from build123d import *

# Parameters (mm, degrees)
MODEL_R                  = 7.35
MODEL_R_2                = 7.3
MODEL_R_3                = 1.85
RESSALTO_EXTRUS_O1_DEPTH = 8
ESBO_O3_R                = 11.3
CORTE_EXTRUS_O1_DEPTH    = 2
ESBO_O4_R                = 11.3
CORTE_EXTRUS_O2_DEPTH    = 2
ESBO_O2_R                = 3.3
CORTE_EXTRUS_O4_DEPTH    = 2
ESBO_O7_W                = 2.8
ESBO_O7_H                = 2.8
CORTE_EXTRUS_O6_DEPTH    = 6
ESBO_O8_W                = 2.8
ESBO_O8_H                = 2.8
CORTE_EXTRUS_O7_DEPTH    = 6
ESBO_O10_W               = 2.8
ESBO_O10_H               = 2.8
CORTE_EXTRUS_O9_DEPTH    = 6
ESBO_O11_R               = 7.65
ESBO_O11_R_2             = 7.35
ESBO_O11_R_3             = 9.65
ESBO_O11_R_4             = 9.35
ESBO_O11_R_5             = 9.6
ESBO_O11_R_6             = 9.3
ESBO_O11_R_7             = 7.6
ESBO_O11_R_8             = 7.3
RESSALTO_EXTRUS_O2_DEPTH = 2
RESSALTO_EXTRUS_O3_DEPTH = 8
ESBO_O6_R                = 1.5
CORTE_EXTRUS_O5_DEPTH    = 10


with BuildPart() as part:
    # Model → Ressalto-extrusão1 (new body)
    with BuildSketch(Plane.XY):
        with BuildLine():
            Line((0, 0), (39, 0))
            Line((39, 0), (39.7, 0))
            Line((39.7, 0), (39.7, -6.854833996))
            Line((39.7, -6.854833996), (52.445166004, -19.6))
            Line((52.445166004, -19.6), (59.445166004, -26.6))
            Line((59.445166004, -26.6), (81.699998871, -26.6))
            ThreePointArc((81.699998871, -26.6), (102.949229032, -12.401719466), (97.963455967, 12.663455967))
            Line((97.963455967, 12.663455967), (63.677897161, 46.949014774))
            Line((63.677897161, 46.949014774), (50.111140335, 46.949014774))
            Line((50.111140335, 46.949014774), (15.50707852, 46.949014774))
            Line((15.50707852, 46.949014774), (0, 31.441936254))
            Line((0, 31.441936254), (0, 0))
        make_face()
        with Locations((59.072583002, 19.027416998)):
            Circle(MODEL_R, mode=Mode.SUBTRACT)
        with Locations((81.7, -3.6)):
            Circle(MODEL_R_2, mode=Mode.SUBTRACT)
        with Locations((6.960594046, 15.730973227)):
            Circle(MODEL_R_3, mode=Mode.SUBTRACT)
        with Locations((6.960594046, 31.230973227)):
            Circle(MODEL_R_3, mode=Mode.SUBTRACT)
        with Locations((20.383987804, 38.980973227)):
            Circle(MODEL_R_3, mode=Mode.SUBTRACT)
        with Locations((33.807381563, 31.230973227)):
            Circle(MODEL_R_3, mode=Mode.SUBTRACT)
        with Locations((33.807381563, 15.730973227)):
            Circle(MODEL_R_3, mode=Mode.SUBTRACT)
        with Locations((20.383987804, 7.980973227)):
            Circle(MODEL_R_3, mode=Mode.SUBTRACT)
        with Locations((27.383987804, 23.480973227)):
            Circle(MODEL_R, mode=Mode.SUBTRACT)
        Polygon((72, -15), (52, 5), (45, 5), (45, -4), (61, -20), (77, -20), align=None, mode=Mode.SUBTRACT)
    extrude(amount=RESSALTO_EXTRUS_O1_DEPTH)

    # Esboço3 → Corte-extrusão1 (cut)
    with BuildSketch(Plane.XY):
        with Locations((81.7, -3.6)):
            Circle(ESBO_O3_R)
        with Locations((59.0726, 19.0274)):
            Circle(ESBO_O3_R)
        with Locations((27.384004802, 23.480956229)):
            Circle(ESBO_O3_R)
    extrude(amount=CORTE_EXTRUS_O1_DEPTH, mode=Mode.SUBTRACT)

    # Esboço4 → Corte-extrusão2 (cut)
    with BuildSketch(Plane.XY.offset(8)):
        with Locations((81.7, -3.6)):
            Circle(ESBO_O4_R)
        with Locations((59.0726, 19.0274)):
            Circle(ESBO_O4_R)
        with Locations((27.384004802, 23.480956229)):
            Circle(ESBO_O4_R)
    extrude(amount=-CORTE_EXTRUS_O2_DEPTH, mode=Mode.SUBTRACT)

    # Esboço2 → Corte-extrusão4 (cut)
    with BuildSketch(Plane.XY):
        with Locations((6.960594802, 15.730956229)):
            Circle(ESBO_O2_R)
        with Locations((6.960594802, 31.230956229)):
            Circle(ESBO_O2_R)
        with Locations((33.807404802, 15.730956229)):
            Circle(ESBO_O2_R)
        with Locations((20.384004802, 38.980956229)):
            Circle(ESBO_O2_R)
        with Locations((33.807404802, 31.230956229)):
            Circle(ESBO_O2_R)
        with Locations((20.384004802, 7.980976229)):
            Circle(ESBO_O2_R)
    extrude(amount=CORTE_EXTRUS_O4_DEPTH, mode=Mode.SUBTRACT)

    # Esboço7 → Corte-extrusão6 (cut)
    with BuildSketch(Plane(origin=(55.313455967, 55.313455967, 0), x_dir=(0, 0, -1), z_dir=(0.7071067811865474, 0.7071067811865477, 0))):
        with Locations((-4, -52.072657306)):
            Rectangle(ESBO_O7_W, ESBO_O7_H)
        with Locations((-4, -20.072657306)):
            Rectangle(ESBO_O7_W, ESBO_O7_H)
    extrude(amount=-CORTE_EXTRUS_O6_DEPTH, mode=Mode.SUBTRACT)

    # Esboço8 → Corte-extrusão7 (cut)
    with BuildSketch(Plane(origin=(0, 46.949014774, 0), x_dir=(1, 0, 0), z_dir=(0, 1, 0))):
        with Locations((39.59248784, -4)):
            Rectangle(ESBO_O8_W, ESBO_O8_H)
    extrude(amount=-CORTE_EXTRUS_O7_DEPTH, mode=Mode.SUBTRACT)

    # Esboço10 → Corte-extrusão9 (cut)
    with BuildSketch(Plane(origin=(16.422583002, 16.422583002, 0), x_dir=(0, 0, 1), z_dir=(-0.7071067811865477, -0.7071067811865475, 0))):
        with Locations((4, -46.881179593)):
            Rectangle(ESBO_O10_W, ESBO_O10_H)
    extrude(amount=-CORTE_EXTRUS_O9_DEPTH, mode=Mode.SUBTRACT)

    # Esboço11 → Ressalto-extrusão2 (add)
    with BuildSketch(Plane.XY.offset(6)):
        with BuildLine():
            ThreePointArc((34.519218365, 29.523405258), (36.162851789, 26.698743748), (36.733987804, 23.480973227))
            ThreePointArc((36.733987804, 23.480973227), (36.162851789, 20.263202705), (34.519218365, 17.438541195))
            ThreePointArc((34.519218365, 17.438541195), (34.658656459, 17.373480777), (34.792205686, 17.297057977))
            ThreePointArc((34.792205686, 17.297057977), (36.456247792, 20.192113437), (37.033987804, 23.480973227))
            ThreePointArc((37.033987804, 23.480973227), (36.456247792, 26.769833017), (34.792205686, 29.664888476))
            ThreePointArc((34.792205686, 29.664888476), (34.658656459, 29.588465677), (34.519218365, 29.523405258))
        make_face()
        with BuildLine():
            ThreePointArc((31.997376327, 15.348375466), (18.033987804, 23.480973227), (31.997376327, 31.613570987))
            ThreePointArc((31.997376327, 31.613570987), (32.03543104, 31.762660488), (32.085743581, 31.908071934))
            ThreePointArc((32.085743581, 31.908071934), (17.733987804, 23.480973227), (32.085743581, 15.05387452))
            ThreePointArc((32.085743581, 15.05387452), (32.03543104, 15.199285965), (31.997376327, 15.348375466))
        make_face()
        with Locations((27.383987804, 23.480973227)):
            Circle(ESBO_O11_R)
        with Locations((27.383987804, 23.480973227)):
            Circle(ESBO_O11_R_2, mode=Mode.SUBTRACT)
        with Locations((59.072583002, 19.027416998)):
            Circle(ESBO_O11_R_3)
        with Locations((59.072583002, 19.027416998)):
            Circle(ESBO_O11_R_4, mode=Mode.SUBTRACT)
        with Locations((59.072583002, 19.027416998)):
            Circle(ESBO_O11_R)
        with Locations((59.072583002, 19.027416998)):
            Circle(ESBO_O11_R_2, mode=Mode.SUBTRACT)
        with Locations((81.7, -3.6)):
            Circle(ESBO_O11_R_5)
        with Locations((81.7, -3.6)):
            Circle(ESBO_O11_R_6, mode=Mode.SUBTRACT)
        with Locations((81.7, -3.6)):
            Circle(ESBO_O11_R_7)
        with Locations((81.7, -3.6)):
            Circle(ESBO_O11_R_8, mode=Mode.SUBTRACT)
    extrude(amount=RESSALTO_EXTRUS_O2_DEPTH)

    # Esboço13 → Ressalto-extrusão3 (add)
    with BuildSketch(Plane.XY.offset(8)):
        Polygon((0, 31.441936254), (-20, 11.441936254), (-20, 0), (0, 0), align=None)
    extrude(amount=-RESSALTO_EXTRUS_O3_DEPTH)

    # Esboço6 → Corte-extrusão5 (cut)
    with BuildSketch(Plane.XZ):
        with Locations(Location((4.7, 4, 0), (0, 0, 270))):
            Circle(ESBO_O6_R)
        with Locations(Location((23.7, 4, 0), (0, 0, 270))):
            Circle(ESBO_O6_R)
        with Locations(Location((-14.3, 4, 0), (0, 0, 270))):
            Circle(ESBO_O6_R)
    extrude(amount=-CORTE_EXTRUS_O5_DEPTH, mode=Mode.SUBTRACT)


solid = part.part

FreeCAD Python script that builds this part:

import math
import FreeCAD as App
import Part
import Sketcher
Q = App.Units.Quantity

doc = App.newDocument("Part")
params = doc.addObject("Spreadsheet::Sheet", "Params")
for row, (alias, value) in enumerate([
    ("sketch1_radius", "23 mm"),
    ("sketch1_diameter", "3.7 mm"),
    ("sketch1_diameter2", "14.6 mm"),
    ("sketch1_diameter3", "14.7 mm"),
    ("sketch1_width", "16 mm"),
    ("pad1_length", "8 mm"),
    ("sketch2_diameter", "22.6 mm"),
    ("pocket1_length", "2 mm"),
    ("sketch3_diameter", "22.6 mm"),
    ("pocket2_length", "2 mm"),
    ("sketch4_diameter", "6.6 mm"),
    ("pocket3_length", "2 mm"),
    ("sketch5_width", "2.8 mm"),
    ("pocket4_length", "6 mm"),
    ("sketch6_width", "2.8 mm"),
    ("pocket5_length", "6 mm"),
    ("sketch7_width", "2.8 mm"),
    ("pocket6_length", "6 mm"),
    ("sketch8_diameter", "15.3 mm"),
    ("sketch8_diameter2", "14.7 mm"),
    ("sketch8_diameter3", "19.3 mm"),
    ("sketch8_diameter4", "18.7 mm"),
    ("sketch8_diameter5", "19.2 mm"),
    ("pad2_length", "2 mm"),
    ("sketch9_width", "20 mm"),
    ("pad3_length", "8 mm"),
    ("sketch10_diameter", "3 mm"),
    ("pocket7_length", "10 mm"),
], start=1):
    params.set(f"A{row}", alias)
    params.set(f"B{row}", "=" + value)
    params.setAlias(f"B{row}", alias)

body = doc.addObject("PartDesign::Body", "Body")

# Sketch on XY plane
sketch1 = body.newObject("Sketcher::SketchObject", "Sketch")
sketch1.AttachmentSupport = (doc.getObject("XY_Plane"), [""])
sketch1.MapMode = "FlatFace"
sketch1.addGeometry([
    Part.LineSegment(App.Vector(0, 0, 0), App.Vector(39.7, 0, 0)),  # 0
    Part.LineSegment(App.Vector(39.7, 0, 0), App.Vector(39.7, -6.9, 0)),  # 1
    Part.LineSegment(App.Vector(39.7, -6.9, 0), App.Vector(59.4, -26.6, 0)),  # 2
    Part.LineSegment(App.Vector(59.4, -26.6, 0), App.Vector(81.7, -26.6, 0)),  # 3
    Part.ArcOfCircle(Part.Circle(App.Vector(81.7, -3.6, 0), App.Vector(0, 0, 1), 23), math.radians(-90), math.radians(45)),  # 4
    Part.LineSegment(App.Vector(98, 12.7, 0), App.Vector(63.7, 46.9, 0)),  # 5
    Part.LineSegment(App.Vector(63.7, 46.9, 0), App.Vector(15.5, 46.9, 0)),  # 6
    Part.LineSegment(App.Vector(15.5, 46.9, 0), App.Vector(0, 31.4, 0)),  # 7
    Part.LineSegment(App.Vector(0, 31.4, 0), App.Vector(0, 0, 0)),  # 8
    Part.Circle(App.Vector(20.4, 8, 0), App.Vector(0, 0, 1), 1.9),  # 9
    Part.LineSegment(App.Vector(52, 5, 0), App.Vector(77, -20, 0)),  # 10
    Part.LineSegment(App.Vector(77, -20, 0), App.Vector(61, -20, 0)),  # 11
    Part.LineSegment(App.Vector(61, -20, 0), App.Vector(45, -4, 0)),  # 12
    Part.LineSegment(App.Vector(45, -4, 0), App.Vector(45, 5, 0)),  # 13
    Part.LineSegment(App.Vector(45, 5, 0), App.Vector(52, 5, 0)),  # 14
    Part.Circle(App.Vector(81.7, -3.6, 0), App.Vector(0, 0, 1), 7.3),  # 15
    Part.Circle(App.Vector(7, 15.7, 0), App.Vector(0, 0, 1), 1.9),  # 16
    Part.Circle(App.Vector(33.8, 15.7, 0), App.Vector(0, 0, 1), 1.9),  # 17
    Part.Circle(App.Vector(27.4, 23.5, 0), App.Vector(0, 0, 1), 7.3),  # 18
    Part.Circle(App.Vector(7, 31.2, 0), App.Vector(0, 0, 1), 1.9),  # 19
    Part.Circle(App.Vector(20.4, 39, 0), App.Vector(0, 0, 1), 1.9),  # 20
    Part.Circle(App.Vector(33.8, 31.2, 0), App.Vector(0, 0, 1), 1.9),  # 21
    Part.Circle(App.Vector(59.1, 19, 0), App.Vector(0, 0, 1), 7.3),  # 22
], False)
sketch1.addConstraint([
    Sketcher.Constraint("Coincident", 0, 2, 1, 1),
    Sketcher.Constraint("Coincident", 1, 2, 2, 1),
    Sketcher.Constraint("Coincident", 2, 2, 3, 1),
    Sketcher.Constraint("Tangent", 3, 2, 4, 1),
    Sketcher.Constraint("Tangent", 4, 2, 5, 1),
    Sketcher.Constraint("Coincident", 5, 2, 6, 1),
    Sketcher.Constraint("Coincident", 6, 2, 7, 1),
    Sketcher.Constraint("Coincident", 7, 2, 8, 1),
    Sketcher.Constraint("Coincident", 8, 2, 0, 1),
    Sketcher.Constraint("Coincident", 10, 2, 11, 1),
    Sketcher.Constraint("Coincident", 11, 2, 12, 1),
    Sketcher.Constraint("Coincident", 12, 2, 13, 1),
    Sketcher.Constraint("Coincident", 13, 2, 14, 1),
    Sketcher.Constraint("Coincident", 14, 2, 10, 1),
    Sketcher.Constraint("Horizontal", 0),
    Sketcher.Constraint("Vertical", 1),
    Sketcher.Constraint("Horizontal", 3),
    Sketcher.Constraint("Horizontal", 6),
    Sketcher.Constraint("Vertical", 8),
    Sketcher.Constraint("Horizontal", 11),
    Sketcher.Constraint("Vertical", 13),
    Sketcher.Constraint("Horizontal", 14),
    Sketcher.Constraint("Coincident", 8, 2, -1, 1),
    Sketcher.Constraint("Coincident", 15, 3, 4, 3),
    Sketcher.Constraint("Equal", 9, 16),
    Sketcher.Constraint("Equal", 16, 17),
    Sketcher.Constraint("Equal", 17, 19),
    Sketcher.Constraint("Equal", 19, 20),
    Sketcher.Constraint("Equal", 20, 21),
    Sketcher.Constraint("Equal", 18, 22),
    Sketcher.Constraint("Parallel", 2, 5),
    Sketcher.Constraint("Perpendicular", 5, 7),
    Sketcher.Constraint("Perpendicular", 7, 10),
    Sketcher.Constraint("Parallel", 10, 12),
    Sketcher.Constraint("Horizontal", 16, 3, 17, 3),
    Sketcher.Constraint("Horizontal", 19, 3, 21, 3),
    Sketcher.Constraint("Vertical", 16, 3, 19, 3),
    Sketcher.Constraint("Vertical", 9, 3, 20, 3),
    Sketcher.Constraint("Vertical", 17, 3, 21, 3),
    Sketcher.Constraint("Radius", 4, Q("23 mm")),
    Sketcher.Constraint("Diameter", 9, Q("3.7 mm")),
    Sketcher.Constraint("Diameter", 15, Q("14.6 mm")),
    Sketcher.Constraint("Diameter", 18, Q("14.7 mm")),
    Sketcher.Constraint("DistanceX", 11, 2, 11, 1, Q("16 mm")),
    Sketcher.Constraint("DistanceX", 14, 1, 14, 2, Q("7 mm")),
    Sketcher.Constraint("DistanceY", 13, 1, 13, 2, Q("9 mm")),
    Sketcher.Constraint("DistanceX", 0, 1, 0, 2, Q("39.7 mm")),
    Sketcher.Constraint("DistanceX", -1, 1, 10, 2, Q("77 mm")),
    Sketcher.Constraint("DistanceY", 10, 2, -1, 1, Q("20 mm")),
    Sketcher.Constraint("DistanceX", -1, 1, 12, 2, Q("45 mm")),
    Sketcher.Constraint("DistanceX", 9, 3, 18, 3, Q("7 mm")),
    Sketcher.Constraint("DistanceY", 9, 3, 20, 3, Q("31 mm")),
    Sketcher.Constraint("DistanceX", 1, 2, 3, 2, Q("41.999999 mm")),
    Sketcher.Constraint("DistanceY", 4, 3, -1, 1, Q("3.6 mm")),
    Sketcher.Constraint("DistanceY", 9, 3, 18, 3, Q("15.5 mm")),
    Sketcher.Constraint("DistanceY", 16, 3, 19, 3, Q("15.5 mm")),
    Sketcher.Constraint("DistanceY", 9, 3, 16, 3, Q("7.75 mm")),
    Sketcher.Constraint("DistanceX", 6, 2, 6, 1, Q("48.170819 mm")),
    Sketcher.Constraint("DistanceX", 17, 3, 22, 3, Q("25.265201 mm")),
    Sketcher.Constraint("Distance", 2, Q("27.923882 mm")),
    Sketcher.Constraint("Distance", 7, Q("21.930321 mm")),
    Sketcher.Constraint("DistanceX", -1, 1, 17, 3, Q("33.807382 mm")),
    Sketcher.Constraint("DistanceY", 1, 2, 22, 3, Q("25.882251 mm")),
    Sketcher.Constraint("DistanceY", 21, 3, 5, 2, Q("15.718042 mm")),
    Sketcher.Constraint("DistanceX", 18, 3, 5, 2, Q("36.293909 mm")),
    Sketcher.Constraint("DistanceX", -1, 1, 16, 3, Q("6.960594 mm")),
])
sketch1.setExpression("Constraints[39]", "Params.sketch1_radius")
sketch1.setExpression("Constraints[40]", "Params.sketch1_diameter")
sketch1.setExpression("Constraints[41]", "Params.sketch1_diameter2")
sketch1.setExpression("Constraints[42]", "Params.sketch1_diameter3")
sketch1.setExpression("Constraints[43]", "Params.sketch1_width")
pad1 = body.newObject("PartDesign::Pad", "Pad")
pad1.Profile = sketch1
pad1.setExpression("Length", "Params.pad1_length")

# Sketch on XY plane
sketch2 = body.newObject("Sketcher::SketchObject", "Sketch001")
sketch2.AttachmentSupport = (doc.getObject("XY_Plane"), [""])
sketch2.MapMode = "FlatFace"
sketch2.addGeometry([
    Part.Circle(App.Vector(82, -4, 0), App.Vector(0, 0, 1), 11),
    Part.Circle(App.Vector(59, 19, 0), App.Vector(0, 0, 1), 11),
    Part.Circle(App.Vector(27, 23, 0), App.Vector(0, 0, 1), 11),
], False)
sketch2.addConstraint([
    Sketcher.Constraint("Equal", 0, 1),
    Sketcher.Constraint("Equal", 1, 2),
    Sketcher.Constraint("Diameter", 0, Q("22.6 mm")),
    Sketcher.Constraint("DistanceX", -1, 1, 0, 3, Q("81.7 mm")),
    Sketcher.Constraint("DistanceY", 0, 3, -1, 1, Q("3.6 mm")),
    Sketcher.Constraint("DistanceX", -1, 1, 1, 3, Q("59.0726 mm")),
    Sketcher.Constraint("DistanceY", -1, 1, 1, 3, Q("19.0274 mm")),
    Sketcher.Constraint("DistanceX", -1, 1, 2, 3, Q("27.384005 mm")),
    Sketcher.Constraint("DistanceY", -1, 1, 2, 3, Q("23.480956 mm")),
])
sketch2.setExpression("Constraints[2]", "Params.sketch2_diameter")
pocket1 = body.newObject("PartDesign::Pocket", "Pocket")
pocket1.Profile = sketch2
pocket1.setExpression("Length", "Params.pocket1_length")
pocket1.Reversed = True

# Sketch on XY plane
sketch3 = body.newObject("Sketcher::SketchObject", "Sketch002")
sketch3.AttachmentSupport = (doc.getObject("XY_Plane"), [""])
sketch3.MapMode = "FlatFace"
sketch3.AttachmentOffset = App.Placement(App.Vector(0, 0, 8), App.Rotation())
sketch3.addGeometry([
    Part.Circle(App.Vector(82, -4, 0), App.Vector(0, 0, 1), 11),
    Part.Circle(App.Vector(59, 19, 0), App.Vector(0, 0, 1), 11),
    Part.Circle(App.Vector(27, 23, 0), App.Vector(0, 0, 1), 11),
], False)
sketch3.addConstraint([
    Sketcher.Constraint("Equal", 0, 1),
    Sketcher.Constraint("Equal", 1, 2),
    Sketcher.Constraint("Diameter", 0, Q("22.6 mm")),
    Sketcher.Constraint("DistanceX", -1, 1, 0, 3, Q("81.7 mm")),
    Sketcher.Constraint("DistanceY", 0, 3, -1, 1, Q("3.6 mm")),
    Sketcher.Constraint("DistanceX", -1, 1, 1, 3, Q("59.0726 mm")),
    Sketcher.Constraint("DistanceY", -1, 1, 1, 3, Q("19.0274 mm")),
    Sketcher.Constraint("DistanceX", -1, 1, 2, 3, Q("27.384005 mm")),
    Sketcher.Constraint("DistanceY", -1, 1, 2, 3, Q("23.480956 mm")),
])
sketch3.setExpression("Constraints[2]", "Params.sketch3_diameter")
pocket2 = body.newObject("PartDesign::Pocket", "Pocket001")
pocket2.Profile = sketch3
pocket2.setExpression("Length", "Params.pocket2_length")

# Sketch on XY plane
sketch4 = body.newObject("Sketcher::SketchObject", "Sketch003")
sketch4.AttachmentSupport = (doc.getObject("XY_Plane"), [""])
sketch4.MapMode = "FlatFace"
sketch4.addGeometry([
    Part.Circle(App.Vector(7, 15.7, 0), App.Vector(0, 0, 1), 3.3),  # 0
    Part.Circle(App.Vector(7, 31.2, 0), App.Vector(0, 0, 1), 3.3),  # 1
    Part.Circle(App.Vector(33.8, 15.7, 0), App.Vector(0, 0, 1), 3.3),  # 2
    Part.Circle(App.Vector(20.4, 39, 0), App.Vector(0, 0, 1), 3.3),  # 3
    Part.Circle(App.Vector(33.8, 31.2, 0), App.Vector(0, 0, 1), 3.3),  # 4
    Part.Circle(App.Vector(20.4, 8, 0), App.Vector(0, 0, 1), 3.3),  # 5
], False)
sketch4.addConstraint([
    Sketcher.Constraint("Equal", 0, 1),
    Sketcher.Constraint("Equal", 1, 2),
    Sketcher.Constraint("Equal", 2, 3),
    Sketcher.Constraint("Equal", 3, 4),
    Sketcher.Constraint("Equal", 4, 5),
    Sketcher.Constraint("Horizontal", 0, 3, 2, 3),
    Sketcher.Constraint("Horizontal", 1, 3, 4, 3),
    Sketcher.Constraint("Vertical", 0, 3, 1, 3),
    Sketcher.Constraint("Vertical", 2, 3, 4, 3),
    Sketcher.Constraint("Vertical", 3, 3, 5, 3),
    Sketcher.Constraint("Diameter", 0, Q("6.6 mm")),
    Sketcher.Constraint("DistanceY", 0, 3, 1, 3, Q("15.5 mm")),
    Sketcher.Constraint("DistanceY", 1, 3, 3, 3, Q("7.75 mm")),
    Sketcher.Constraint("DistanceX", 3, 3, 2, 3, Q("13.4234 mm")),
    Sketcher.Constraint("DistanceX", 0, 3, 2, 3, Q("26.84681 mm")),
    Sketcher.Constraint("DistanceY", 5, 3, 2, 3, Q("7.74998 mm")),
    Sketcher.Constraint("DistanceX", -1, 1, 0, 3, Q("6.960595 mm")),
    Sketcher.Constraint("DistanceY", -1, 1, 0, 3, Q("15.730956 mm")),
])
sketch4.setExpression("Constraints[10]", "Params.sketch4_diameter")
pocket3 = body.newObject("PartDesign::Pocket", "Pocket002")
pocket3.Profile = sketch4
pocket3.setExpression("Length", "Params.pocket3_length")
pocket3.Reversed = True

# Sketch on an angled plane
sketch5 = body.newObject("Sketcher::SketchObject", "Sketch004")
sketch5.Placement = App.Placement(App.Vector(55.313456, 55.313456, 0), App.Rotation(App.Vector(0, 0, -1), App.Vector(-0.707106781, 0.707106781, 0), App.Vector(0.707106781, 0.707106781, 0), "ZXY"))
sketch5.addGeometry([
    Part.LineSegment(App.Vector(-5.4, -50.7, 0), App.Vector(-5.4, -53.5, 0)),  # 0
    Part.LineSegment(App.Vector(-5.4, -53.5, 0), App.Vector(-2.6, -53.5, 0)),  # 1
    Part.LineSegment(App.Vector(-2.6, -53.5, 0), App.Vector(-2.6, -50.7, 0)),  # 2
    Part.LineSegment(App.Vector(-2.6, -50.7, 0), App.Vector(-5.4, -50.7, 0)),  # 3
    Part.LineSegment(App.Vector(-5.4, -18.7, 0), App.Vector(-5.4, -21.5, 0)),  # 4
    Part.LineSegment(App.Vector(-5.4, -21.5, 0), App.Vector(-2.6, -21.5, 0)),  # 5
    Part.LineSegment(App.Vector(-2.6, -21.5, 0), App.Vector(-2.6, -18.7, 0)),  # 6
    Part.LineSegment(App.Vector(-2.6, -18.7, 0), App.Vector(-5.4, -18.7, 0)),  # 7
], False)
sketch5.addConstraint([
    Sketcher.Constraint("Coincident", 0, 2, 1, 1),
    Sketcher.Constraint("Coincident", 1, 2, 2, 1),
    Sketcher.Constraint("Coincident", 2, 2, 3, 1),
    Sketcher.Constraint("Coincident", 3, 2, 0, 1),
    Sketcher.Constraint("Coincident", 4, 2, 5, 1),
    Sketcher.Constraint("Coincident", 5, 2, 6, 1),
    Sketcher.Constraint("Coincident", 6, 2, 7, 1),
    Sketcher.Constraint("Coincident", 7, 2, 4, 1),
    Sketcher.Constraint("Vertical", 0),
    Sketcher.Constraint("Horizontal", 1),
    Sketcher.Constraint("Vertical", 2),
    Sketcher.Constraint("Horizontal", 3),
    Sketcher.Constraint("Vertical", 4),
    Sketcher.Constraint("Horizontal", 5),
    Sketcher.Constraint("Vertical", 6),
    Sketcher.Constraint("Horizontal", 7),
    Sketcher.Constraint("Vertical", 3, 2, 4, 2),
    Sketcher.Constraint("Vertical", 2, 2, 5, 2),
    Sketcher.Constraint("Equal", 7, 0),
    Sketcher.Constraint("Equal", 2, 4),
    Sketcher.Constraint("DistanceX", 1, 1, 1, 2, Q("2.8 mm")),
    Sketcher.Constraint("DistanceY", 0, 2, 4, 2, Q("32 mm")),
    Sketcher.Constraint("DistanceX", 0, 2, -1, 1, Q("5.4 mm")),
    Sketcher.Constraint("DistanceY", 0, 2, -1, 1, Q("53.472657 mm")),
])
sketch5.setExpression("Constraints[20]", "Params.sketch5_width")
pocket4 = body.newObject("PartDesign::Pocket", "Pocket003")
pocket4.Profile = sketch5
pocket4.setExpression("Length", "Params.pocket4_length")

# Sketch on XZ plane
sketch6 = body.newObject("Sketcher::SketchObject", "Sketch005")
sketch6.AttachmentSupport = (doc.getObject("XZ_Plane"), [""])
sketch6.MapMode = "FlatFace"
sketch6.AttachmentOffset = App.Placement(App.Vector(0, 0, -46.949015), App.Rotation())
sketch6.addGeometry([
    Part.LineSegment(App.Vector(38.2, 2.6, 0), App.Vector(38.2, 5.4, 0)),
    Part.LineSegment(App.Vector(38.2, 5.4, 0), App.Vector(41, 5.4, 0)),
    Part.LineSegment(App.Vector(41, 5.4, 0), App.Vector(41, 2.6, 0)),
    Part.LineSegment(App.Vector(41, 2.6, 0), App.Vector(38.2, 2.6, 0)),
], False)
sketch6.addConstraint([
    Sketcher.Constraint("Coincident", 0, 2, 1, 1),
    Sketcher.Constraint("Coincident", 1, 2, 2, 1),
    Sketcher.Constraint("Coincident", 2, 2, 3, 1),
    Sketcher.Constraint("Coincident", 3, 2, 0, 1),
    Sketcher.Constraint("Vertical", 0),
    Sketcher.Constraint("Horizontal", 1),
    Sketcher.Constraint("Vertical", 2),
    Sketcher.Constraint("Horizontal", 3),
    Sketcher.Constraint("Equal", 3, 0),
    Sketcher.Constraint("DistanceX", 1, 1, 1, 2, Q("2.8 mm")),
    Sketcher.Constraint("DistanceY", -1, 1, 0, 2, Q("5.4 mm")),
    Sketcher.Constraint("DistanceX", -1, 1, 0, 2, Q("38.192488 mm")),
])
sketch6.setExpression("Constraints[9]", "Params.sketch6_width")
pocket5 = body.newObject("PartDesign::Pocket", "Pocket004")
pocket5.Profile = sketch6
pocket5.setExpression("Length", "Params.pocket5_length")
pocket5.Reversed = True

# Sketch on an angled plane
sketch7 = body.newObject("Sketcher::SketchObject", "Sketch006")
sketch7.Placement = App.Placement(App.Vector(16.422583, 16.422583, 0), App.Rotation(App.Vector(0, 0, 1), App.Vector(-0.707106781, 0.707106781, 0), App.Vector(-0.707106781, -0.707106781, 0), "ZXY"))
sketch7.addGeometry([
    Part.LineSegment(App.Vector(2.6, -45.5, 0), App.Vector(2.6, -48.3, 0)),
    Part.LineSegment(App.Vector(2.6, -48.3, 0), App.Vector(5.4, -48.3, 0)),
    Part.LineSegment(App.Vector(5.4, -48.3, 0), App.Vector(5.4, -45.5, 0)),
    Part.LineSegment(App.Vector(5.4, -45.5, 0), App.Vector(2.6, -45.5, 0)),
], False)
sketch7.addConstraint([
    Sketcher.Constraint("Coincident", 0, 2, 1, 1),
    Sketcher.Constraint("Coincident", 1, 2, 2, 1),
    Sketcher.Constraint("Coincident", 2, 2, 3, 1),
    Sketcher.Constraint("Coincident", 3, 2, 0, 1),
    Sketcher.Constraint("Vertical", 0),
    Sketcher.Constraint("Horizontal", 1),
    Sketcher.Constraint("Vertical", 2),
    Sketcher.Constraint("Horizontal", 3),
    Sketcher.Constraint("Equal", 3, 0),
    Sketcher.Constraint("DistanceX", 1, 1, 1, 2, Q("2.8 mm")),
    Sketcher.Constraint("DistanceX", -1, 1, 0, 2, Q("2.6 mm")),
    Sketcher.Constraint("DistanceY", 0, 2, -1, 1, Q("48.28118 mm")),
])
sketch7.setExpression("Constraints[9]", "Params.sketch7_width")
pocket6 = body.newObject("PartDesign::Pocket", "Pocket005")
pocket6.Profile = sketch7
pocket6.setExpression("Length", "Params.pocket6_length")

# Sketch on XY plane
sketch8 = body.newObject("Sketcher::SketchObject", "Sketch007")
sketch8.AttachmentSupport = (doc.getObject("XY_Plane"), [""])
sketch8.MapMode = "FlatFace"
sketch8.AttachmentOffset = App.Placement(App.Vector(0, 0, 6), App.Rotation())
sketch8.addGeometry([
    Part.ArcOfCircle(Part.Circle(App.Vector(27.38, 23.48, 0), App.Vector(0, 0, 1), 9.35), math.radians(0), math.radians(40)),  # 0
    Part.ArcOfCircle(Part.Circle(App.Vector(27.38, 23.48, 0), App.Vector(0, 0, 1), 9.35), math.radians(-40), math.radians(0)),  # 1
    Part.ArcOfCircle(Part.Circle(App.Vector(33.81, 15.73, 0), App.Vector(0, 0, 1), 1.85), math.radians(57.84), math.radians(67.37)),  # 2
    Part.ArcOfCircle(Part.Circle(App.Vector(27.38, 23.48, 0), App.Vector(0, 0, 1), 9.65), math.radians(-40), math.radians(0)),  # 3
    Part.ArcOfCircle(Part.Circle(App.Vector(27.38, 23.48, 0), App.Vector(0, 0, 1), 9.65), math.radians(0), math.radians(40)),  # 4
    Part.ArcOfCircle(Part.Circle(App.Vector(33.81, 31.23, 0), App.Vector(0, 0, 1), 1.85), math.radians(-67.37), math.radians(-57.84)),  # 5
    Part.ArcOfCircle(Part.Circle(App.Vector(27.38, 23.48, 0), App.Vector(0, 0, 1), 9.35), math.radians(60), math.radians(300)),  # 6
    Part.ArcOfCircle(Part.Circle(App.Vector(33.81, 31.23, 0), App.Vector(0, 0, 1), 1.85), math.radians(158.53), math.radians(168.06)),  # 7
    Part.ArcOfCircle(Part.Circle(App.Vector(27.38, 23.48, 0), App.Vector(0, 0, 1), 9.65), math.radians(61), math.radians(299)),  # 8
    Part.ArcOfCircle(Part.Circle(App.Vector(33.81, 15.73, 0), App.Vector(0, 0, 1), 1.85), math.radians(-168.06), math.radians(-158.53)),  # 9
    Part.Circle(App.Vector(27.38, 23.48, 0), App.Vector(0, 0, 1), 7.65),  # 10
    Part.Circle(App.Vector(27.38, 23.48, 0), App.Vector(0, 0, 1), 7.35),  # 11
    Part.Circle(App.Vector(59.07, 19.03, 0), App.Vector(0, 0, 1), 9.65),  # 12
    Part.Circle(App.Vector(59.07, 19.03, 0), App.Vector(0, 0, 1), 9.35),  # 13
    Part.Circle(App.Vector(59.07, 19.03, 0), App.Vector(0, 0, 1), 7.65),  # 14
    Part.Circle(App.Vector(59.07, 19.03, 0), App.Vector(0, 0, 1), 7.35),  # 15
    Part.Circle(App.Vector(81.7, -3.6, 0), App.Vector(0, 0, 1), 9.6),  # 16
    Part.Circle(App.Vector(81.7, -3.6, 0), App.Vector(0, 0, 1), 9.3),  # 17
    Part.Circle(App.Vector(81.7, -3.6, 0), App.Vector(0, 0, 1), 7.6),  # 18
    Part.Circle(App.Vector(81.7, -3.6, 0), App.Vector(0, 0, 1), 7.3),  # 19
], False)
sketch8.addConstraint([
    Sketcher.Constraint("Tangent", 0, 1, 1, 2),
    Sketcher.Constraint("Coincident", 1, 1, 2, 2),
    Sketcher.Constraint("Coincident", 2, 1, 3, 1),
    Sketcher.Constraint("Tangent", 3, 2, 4, 1),
    Sketcher.Constraint("Coincident", 4, 2, 5, 2),
    Sketcher.Constraint("Coincident", 5, 1, 0, 2),
    Sketcher.Constraint("Coincident", 6, 1, 7, 2),
    Sketcher.Constraint("Coincident", 7, 1, 8, 1),
    Sketcher.Constraint("Coincident", 8, 2, 9, 2),
    Sketcher.Constraint("Coincident", 9, 1, 6, 2),
    Sketcher.Constraint("Coincident", 3, 3, 0, 3),
    Sketcher.Constraint("Coincident", 6, 3, 0, 3),
    Sketcher.Constraint("Coincident", 7, 3, 5, 3),
    Sketcher.Constraint("Coincident", 8, 3, 0, 3),
    Sketcher.Constraint("Coincident", 9, 3, 2, 3),
    Sketcher.Constraint("Coincident", 10, 3, 0, 3),
    Sketcher.Constraint("Coincident", 11, 3, 0, 3),
    Sketcher.Constraint("Coincident", 13, 3, 12, 3),
    Sketcher.Constraint("Coincident", 14, 3, 12, 3),
    Sketcher.Constraint("Coincident", 15, 3, 12, 3),
    Sketcher.Constraint("Coincident", 17, 3, 16, 3),
    Sketcher.Constraint("Coincident", 18, 3, 16, 3),
    Sketcher.Constraint("Coincident", 19, 3, 16, 3),
    Sketcher.Constraint("Equal", 0, 1),
    Sketcher.Constraint("Equal", 3, 4),
    Sketcher.Constraint("Equal", 2, 5),
    Sketcher.Constraint("Equal", 1, 6),
    Sketcher.Constraint("Equal", 5, 7),
    Sketcher.Constraint("Equal", 4, 8),
    Sketcher.Constraint("Equal", 7, 9),
    Sketcher.Constraint("Equal", 8, 12),
    Sketcher.Constraint("Equal", 6, 13),
    Sketcher.Constraint("Equal", 10, 14),
    Sketcher.Constraint("Equal", 11, 15),
    Sketcher.Constraint("Horizontal", 11, 3, 0, 1),
    Sketcher.Constraint("Horizontal", 0, 1, 3, 2),
    Sketcher.Constraint("Vertical", 2, 3, 5, 3),
    Sketcher.Constraint("Vertical", 2, 1, 4, 2),
    Sketcher.Constraint("Diameter", 10, Q("15.3 mm")),
    Sketcher.Constraint("Diameter", 11, Q("14.7 mm")),
    Sketcher.Constraint("Diameter", 12, Q("19.3 mm")),
    Sketcher.Constraint("Diameter", 13, Q("18.7 mm")),
    Sketcher.Constraint("Diameter", 16, Q("19.2 mm")),
    Sketcher.Constraint("Diameter", 17, Q("18.6 mm")),
    Sketcher.Constraint("Diameter", 18, Q("15.2 mm")),
    Sketcher.Constraint("Diameter", 19, Q("14.6 mm")),
    Sketcher.Constraint("Radius", 2, Q("1.85 mm")),
    Sketcher.Constraint("DistanceX", -1, 1, 16, 3, Q("81.7 mm")),
    Sketcher.Constraint("DistanceY", 16, 3, -1, 1, Q("3.6 mm")),
    Sketcher.Constraint("DistanceY", 2, 3, 5, 3, Q("15.5 mm")),
    Sketcher.Constraint("DistanceX", 2, 3, 12, 3, Q("25.265201 mm")),
    Sketcher.Constraint("DistanceY", 6, 1, 7, 1, Q("0.294501 mm")),
    Sketcher.Constraint("DistanceX", -1, 1, 2, 3, Q("33.807382 mm")),
    Sketcher.Constraint("DistanceY", -1, 1, 1, 1, Q("17.438541 mm")),
    Sketcher.Constraint("DistanceY", -1, 1, 12, 3, Q("19.027417 mm")),
])
sketch8.setExpression("Constraints[38]", "Params.sketch8_diameter")
sketch8.setExpression("Constraints[39]", "Params.sketch8_diameter2")
sketch8.setExpression("Constraints[40]", "Params.sketch8_diameter3")
sketch8.setExpression("Constraints[41]", "Params.sketch8_diameter4")
sketch8.setExpression("Constraints[42]", "Params.sketch8_diameter5")
pad2 = body.newObject("PartDesign::Pad", "Pad001")
pad2.Profile = sketch8
pad2.setExpression("Length", "Params.pad2_length")

# Sketch on XY plane
sketch9 = body.newObject("Sketcher::SketchObject", "Sketch008")
sketch9.AttachmentSupport = (doc.getObject("XY_Plane"), [""])
sketch9.MapMode = "FlatFace"
sketch9.AttachmentOffset = App.Placement(App.Vector(0, 0, 8), App.Rotation())
sketch9.addGeometry([
    Part.LineSegment(App.Vector(0, 31, 0), App.Vector(-20, 11, 0)),
    Part.LineSegment(App.Vector(-20, 11, 0), App.Vector(-20, 0, 0)),
    Part.LineSegment(App.Vector(-20, 0, 0), App.Vector(0, 0, 0)),
    Part.LineSegment(App.Vector(0, 0, 0), App.Vector(0, 31, 0)),
], False)
sketch9.addConstraint([
    Sketcher.Constraint("Coincident", 0, 2, 1, 1),
    Sketcher.Constraint("Coincident", 1, 2, 2, 1),
    Sketcher.Constraint("Coincident", 2, 2, 3, 1),
    Sketcher.Constraint("Coincident", 3, 2, 0, 1),
    Sketcher.Constraint("Vertical", 1),
    Sketcher.Constraint("Horizontal", 2),
    Sketcher.Constraint("Vertical", 3),
    Sketcher.Constraint("Coincident", 2, 2, -1, 1),
    Sketcher.Constraint("DistanceX", 2, 1, 2, 2, Q("20 mm")),
    Sketcher.Constraint("Angle", 0, Q("-135 deg")),
    Sketcher.Constraint("DistanceY", 1, 2, 1, 1, Q("11.441936 mm")),
])
sketch9.setExpression("Constraints[8]", "Params.sketch9_width")
pad3 = body.newObject("PartDesign::Pad", "Pad002")
pad3.Profile = sketch9
pad3.setExpression("Length", "Params.pad3_length")
pad3.Reversed = True

# Sketch on XZ plane
sketch10 = body.newObject("Sketcher::SketchObject", "Sketch009")
sketch10.AttachmentSupport = (doc.getObject("XZ_Plane"), [""])
sketch10.MapMode = "FlatFace"
sketch10.addGeometry([
    Part.Circle(App.Vector(4.7, 4, 0), App.Vector(0, 0, 1), 1.5),
    Part.Circle(App.Vector(23.7, 4, 0), App.Vector(0, 0, 1), 1.5),
    Part.Circle(App.Vector(-14.3, 4, 0), App.Vector(0, 0, 1), 1.5),
], False)
sketch10.addConstraint([
    Sketcher.Constraint("Equal", 0, 1),
    Sketcher.Constraint("Equal", 1, 2),
    Sketcher.Constraint("Horizontal", 0, 3, 1, 3),
    Sketcher.Constraint("Horizontal", 1, 3, 2, 3),
    Sketcher.Constraint("Diameter", 0, Q("3 mm")),
    Sketcher.Constraint("DistanceY", -1, 1, 0, 3, Q("4 mm")),
    Sketcher.Constraint("DistanceX", 0, 3, 1, 3, Q("19 mm")),
    Sketcher.Constraint("DistanceX", 2, 3, 0, 3, Q("19 mm")),
    Sketcher.Constraint("DistanceX", -1, 1, 0, 3, Q("4.7 mm")),
])
sketch10.setExpression("Constraints[4]", "Params.sketch10_diameter")
pocket7 = body.newObject("PartDesign::Pocket", "Pocket006")
pocket7.Profile = sketch10
pocket7.setExpression("Length", "Params.pocket7_length")

doc.recompute()
